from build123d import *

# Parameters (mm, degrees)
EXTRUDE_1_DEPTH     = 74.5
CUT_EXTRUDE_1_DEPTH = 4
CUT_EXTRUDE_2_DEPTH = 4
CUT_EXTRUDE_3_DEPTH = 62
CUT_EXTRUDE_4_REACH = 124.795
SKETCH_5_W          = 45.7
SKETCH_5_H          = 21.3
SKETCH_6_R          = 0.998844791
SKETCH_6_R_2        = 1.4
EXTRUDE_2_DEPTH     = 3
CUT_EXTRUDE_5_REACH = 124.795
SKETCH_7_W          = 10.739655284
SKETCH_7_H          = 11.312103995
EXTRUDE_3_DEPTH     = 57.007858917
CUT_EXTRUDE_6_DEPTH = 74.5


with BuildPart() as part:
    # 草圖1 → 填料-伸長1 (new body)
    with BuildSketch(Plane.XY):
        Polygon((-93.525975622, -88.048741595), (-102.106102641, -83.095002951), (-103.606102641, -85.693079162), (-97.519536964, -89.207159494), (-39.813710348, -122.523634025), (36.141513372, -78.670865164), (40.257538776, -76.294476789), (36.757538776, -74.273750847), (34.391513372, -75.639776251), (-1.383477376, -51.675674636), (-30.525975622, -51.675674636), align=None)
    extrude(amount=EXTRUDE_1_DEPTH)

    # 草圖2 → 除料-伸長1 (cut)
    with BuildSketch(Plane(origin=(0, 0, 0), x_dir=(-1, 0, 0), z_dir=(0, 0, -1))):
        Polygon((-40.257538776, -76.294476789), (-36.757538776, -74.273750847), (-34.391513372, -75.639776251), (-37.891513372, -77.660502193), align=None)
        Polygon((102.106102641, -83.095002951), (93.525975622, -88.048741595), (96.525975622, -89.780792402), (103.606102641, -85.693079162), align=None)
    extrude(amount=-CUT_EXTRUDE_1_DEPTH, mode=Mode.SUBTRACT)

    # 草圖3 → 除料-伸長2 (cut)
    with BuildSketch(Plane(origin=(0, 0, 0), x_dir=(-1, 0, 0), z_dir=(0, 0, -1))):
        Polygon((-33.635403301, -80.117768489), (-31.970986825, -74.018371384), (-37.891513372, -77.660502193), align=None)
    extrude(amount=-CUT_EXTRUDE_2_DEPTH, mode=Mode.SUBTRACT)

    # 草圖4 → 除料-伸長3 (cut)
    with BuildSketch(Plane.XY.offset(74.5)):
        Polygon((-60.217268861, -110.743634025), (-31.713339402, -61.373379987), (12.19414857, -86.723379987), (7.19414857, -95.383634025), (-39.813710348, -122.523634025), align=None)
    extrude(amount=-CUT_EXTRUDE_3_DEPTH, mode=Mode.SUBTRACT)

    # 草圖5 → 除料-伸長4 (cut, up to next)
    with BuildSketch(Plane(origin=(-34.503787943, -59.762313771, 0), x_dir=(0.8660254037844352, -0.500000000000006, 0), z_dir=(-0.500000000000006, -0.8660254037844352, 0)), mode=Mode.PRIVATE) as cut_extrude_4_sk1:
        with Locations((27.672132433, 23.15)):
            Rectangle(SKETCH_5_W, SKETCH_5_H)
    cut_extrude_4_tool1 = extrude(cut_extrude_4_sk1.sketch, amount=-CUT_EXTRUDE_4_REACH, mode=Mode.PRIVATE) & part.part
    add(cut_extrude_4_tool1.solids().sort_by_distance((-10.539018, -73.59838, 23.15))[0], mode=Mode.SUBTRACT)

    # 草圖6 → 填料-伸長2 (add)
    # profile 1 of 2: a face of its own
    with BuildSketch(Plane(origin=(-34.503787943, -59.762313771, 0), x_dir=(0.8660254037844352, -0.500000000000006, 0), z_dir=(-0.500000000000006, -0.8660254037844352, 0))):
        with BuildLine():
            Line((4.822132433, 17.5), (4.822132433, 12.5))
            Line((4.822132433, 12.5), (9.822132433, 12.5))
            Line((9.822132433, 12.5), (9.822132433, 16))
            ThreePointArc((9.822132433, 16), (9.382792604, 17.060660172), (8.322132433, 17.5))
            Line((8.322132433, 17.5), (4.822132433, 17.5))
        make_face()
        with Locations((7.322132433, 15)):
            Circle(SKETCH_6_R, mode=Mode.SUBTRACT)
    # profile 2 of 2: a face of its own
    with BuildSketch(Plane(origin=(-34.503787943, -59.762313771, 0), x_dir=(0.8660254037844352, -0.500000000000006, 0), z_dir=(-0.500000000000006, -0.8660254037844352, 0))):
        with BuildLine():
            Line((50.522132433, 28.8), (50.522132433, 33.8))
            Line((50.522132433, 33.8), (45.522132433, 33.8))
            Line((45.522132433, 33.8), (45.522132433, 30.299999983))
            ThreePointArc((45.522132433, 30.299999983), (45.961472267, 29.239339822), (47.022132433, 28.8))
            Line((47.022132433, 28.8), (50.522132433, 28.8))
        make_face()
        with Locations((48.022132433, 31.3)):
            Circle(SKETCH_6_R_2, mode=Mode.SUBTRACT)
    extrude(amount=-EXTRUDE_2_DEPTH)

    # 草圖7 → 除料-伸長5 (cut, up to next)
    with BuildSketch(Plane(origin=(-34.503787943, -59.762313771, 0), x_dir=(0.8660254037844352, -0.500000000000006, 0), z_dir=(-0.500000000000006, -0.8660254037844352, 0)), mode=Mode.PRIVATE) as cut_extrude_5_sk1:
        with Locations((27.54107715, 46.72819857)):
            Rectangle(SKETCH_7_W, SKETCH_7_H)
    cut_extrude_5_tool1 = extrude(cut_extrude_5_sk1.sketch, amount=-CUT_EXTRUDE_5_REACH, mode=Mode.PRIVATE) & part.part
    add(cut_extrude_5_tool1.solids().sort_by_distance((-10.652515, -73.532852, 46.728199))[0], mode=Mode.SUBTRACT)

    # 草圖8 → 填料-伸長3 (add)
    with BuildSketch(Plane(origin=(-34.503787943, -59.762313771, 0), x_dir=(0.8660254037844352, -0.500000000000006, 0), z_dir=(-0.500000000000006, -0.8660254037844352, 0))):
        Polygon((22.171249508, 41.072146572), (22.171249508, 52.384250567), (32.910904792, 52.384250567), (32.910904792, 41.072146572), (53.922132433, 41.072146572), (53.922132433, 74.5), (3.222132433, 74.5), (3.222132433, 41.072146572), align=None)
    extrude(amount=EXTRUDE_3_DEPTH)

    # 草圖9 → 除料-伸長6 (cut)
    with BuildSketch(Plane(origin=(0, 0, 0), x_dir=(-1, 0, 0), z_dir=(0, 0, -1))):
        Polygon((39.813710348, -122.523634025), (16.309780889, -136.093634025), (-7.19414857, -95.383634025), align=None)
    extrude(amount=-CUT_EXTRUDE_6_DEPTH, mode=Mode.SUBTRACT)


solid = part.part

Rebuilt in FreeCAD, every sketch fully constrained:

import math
import FreeCAD as App
import Part
import Sketcher
from FreeCAD import Vector
Q = App.Units.Quantity

doc = App.newDocument("Part")
params = doc.addObject("Spreadsheet::Sheet", "Params")
for row, (alias, value) in enumerate([
    ("sketch1_length", "3 mm"),
    ("pad1_length", "74.5 mm"),
    ("sketch2_length", "3 mm"),
    ("pocket1_length", "4 mm"),
    ("pocket2_length", "4 mm"),
    ("sketch4_length", "10 mm"),
    ("sketch4_length2", "50.7 mm"),
    ("sketch4_length3", "23.56 mm"),
    ("pocket3_length", "62 mm"),
    ("sketch5_width", "45.7 mm"),
    ("sketch5_height", "21.3 mm"),
    ("sketch6_diameter", "2.8 mm"),
    ("sketch6_radius", "1.5 mm"),
    ("sketch6_width", "5 mm"),
    ("pad2_length", "3 mm"),
    ("sketch8_width", "50.7 mm"),
    ("pad3_length", "57.007859 mm"),
    ("sketch9_length", "27.14 mm"),
    ("pocket6_length", "74.5 mm"),
], start=1):
    params.set(f"A{row}", alias)
    params.set(f"B{row}", "=" + value)
    params.setAlias(f"B{row}", alias)

body = doc.addObject("PartDesign::Body", "Body")

sketch1 = body.newObject("Sketcher::SketchObject", "Sketch")
sketch1.AttachmentSupport = (doc.getObject("XY_Plane"), [""])
sketch1.MapMode = "FlatFace"
sketch1.addGeometry([
    Part.LineSegment(Vector(-93.5, -88, 0), Vector(-102.1, -83.1, 0)),
    Part.LineSegment(Vector(-102.1, -83.1, 0), Vector(-103.6, -85.7, 0)),
    Part.LineSegment(Vector(-103.6, -85.7, 0), Vector(-97.5, -89.2, 0)),
    Part.LineSegment(Vector(-97.5, -89.2, 0), Vector(-39.8, -122.5, 0)),
    Part.LineSegment(Vector(-39.8, -122.5, 0), Vector(36.1, -78.7, 0)),
    Part.LineSegment(Vector(36.1, -78.7, 0), Vector(40.3, -76.3, 0)),
    Part.LineSegment(Vector(40.3, -76.3, 0), Vector(36.8, -74.3, 0)),
    Part.LineSegment(Vector(36.8, -74.3, 0), Vector(34.4, -75.6, 0)),
    Part.LineSegment(Vector(34.4, -75.6, 0), Vector(-1.4, -51.7, 0)),
    Part.LineSegment(Vector(-1.4, -51.7, 0), Vector(-30.5, -51.7, 0)),
    Part.LineSegment(Vector(-30.5, -51.7, 0), Vector(-93.5, -88, 0)),
], False)
sketch1.addConstraint([
    Sketcher.Constraint("Coincident", 0, 2, 1, 1),
    Sketcher.Constraint("Coincident", 1, 2, 2, 1),
    Sketcher.Constraint("Coincident", 2, 2, 3, 1),
    Sketcher.Constraint("Coincident", 3, 2, 4, 1),
    Sketcher.Constraint("Coincident", 4, 2, 5, 1),
    Sketcher.Constraint("Coincident", 5, 2, 6, 1),
    Sketcher.Constraint("Coincident", 6, 2, 7, 1),
    Sketcher.Constraint("Coincident", 7, 2, 8, 1),
    Sketcher.Constraint("Coincident", 8, 2, 9, 1),
    Sketcher.Constraint("Coincident", 9, 2, 10, 1),
    Sketcher.Constraint("Coincident", 10, 2, 0, 1),
    Sketcher.Constraint("Horizontal", 9),
    Sketcher.Constraint("Perpendicular", 0, 1),
    Sketcher.Constraint("Perpendicular", 1, 2),
    Sketcher.Constraint("Parallel", 2, 3),
    Sketcher.Constraint("Parallel", 4, 5),
    Sketcher.Constraint("Parallel", 3, 6),
    Sketcher.Constraint("Parallel", 5, 7),
    Sketcher.Constraint("Parallel", 7, 10),
    Sketcher.Constraint("Angle", 0, Q("150 deg")),
    Sketcher.Constraint("Angle", 4, Q("30 deg")),
    Sketcher.Constraint("Distance", 1, Q("3 mm")),
    Sketcher.Constraint("DistanceX", 10, 2, 9, 2, Q("63 mm")),
    Sketcher.Constraint("DistanceX", 6, 2, 5, 2, Q("3.5 mm")),
    Sketcher.Constraint("DistanceX", 7, 2, 4, 2, Q("1.75 mm")),
    Sketcher.Constraint("DistanceX", 9, 2, 9, 1, Q("29.142498 mm")),
    Sketcher.Constraint("DistanceY", 5, 2, 7, 2, Q("0.654701 mm")),
    Sketcher.Constraint("DistanceY", 7, 2, 8, 2, Q("23.964102 mm")),
    Sketcher.Constraint("Distance", 2, Q("7.028161 mm")),
    Sketcher.Constraint("Distance", 3, Q("66.632949 mm")),
    Sketcher.Constraint("Distance", 8, Q("43.059588 mm")),
    Sketcher.Constraint("DistanceY", 1, 2, -1, 1, Q("85.693079 mm")),
    Sketcher.Constraint("DistanceX", 3, 2, -1, 1, Q("39.81371 mm")),
])
sketch1.setExpression("Constraints[21]", "Params.sketch1_length")
pad1 = body.newObject("PartDesign::Pad", "Pad")
pad1.Profile = sketch1
pad1.setExpression("Length", "Params.pad1_length")

sketch2 = body.newObject("Sketcher::SketchObject", "Sketch001")
sketch2.AttachmentSupport = (doc.getObject("XY_Plane"), [""])
sketch2.MapMode = "FlatFace"
sketch2.addGeometry([
    Part.LineSegment(Vector(36.8, -74.3, 0), Vector(40.3, -76.3, 0)),
    Part.LineSegment(Vector(40.3, -76.3, 0), Vector(37.9, -77.7, 0)),
    Part.LineSegment(Vector(37.9, -77.7, 0), Vector(34.4, -75.6, 0)),
    Part.LineSegment(Vector(34.4, -75.6, 0), Vector(36.8, -74.3, 0)),
    Part.LineSegment(Vector(-102.1, -83.1, 0), Vector(-93.5, -88, 0)),
    Part.LineSegment(Vector(-93.5, -88, 0), Vector(-96.5, -89.8, 0)),
    Part.LineSegment(Vector(-96.5, -89.8, 0), Vector(-103.6, -85.7, 0)),
    Part.LineSegment(Vector(-103.6, -85.7, 0), Vector(-102.1, -83.1, 0)),
], False)
sketch2.addConstraint([
    Sketcher.Constraint("Coincident", 0, 2, 1, 1),
    Sketcher.Constraint("Coincident", 1, 2, 2, 1),
    Sketcher.Constraint("Coincident", 2, 2, 3, 1),
    Sketcher.Constraint("Coincident", 3, 2, 0, 1),
    Sketcher.Constraint("Coincident", 4, 2, 5, 1),
    Sketcher.Constraint("Coincident", 5, 2, 6, 1),
    Sketcher.Constraint("Coincident", 6, 2, 7, 1),
    Sketcher.Constraint("Coincident", 7, 2, 4, 1),
    Sketcher.Constraint("Parallel", 0, 2),
    Sketcher.Constraint("Parallel", 1, 3),
    Sketcher.Constraint("Parallel", 2, 4),
    Sketcher.Constraint("Parallel", 3, 5),
    Sketcher.Constraint("Parallel", 4, 6),
    Sketcher.Constraint("Perpendicular", 6, 7),
    Sketcher.Constraint("Angle", 0, Q("-30 deg")),
    Sketcher.Constraint("Angle", 1, Q("-150 deg")),
    Sketcher.Constraint("Distance", 7, Q("3 mm")),
    Sketcher.Constraint("DistanceX", 2, 2, 1, 2, Q("3.5 mm")),
    Sketcher.Constraint("DistanceY", 0, 2, 2, 2, Q("0.654701 mm")),
    Sketcher.Constraint("DistanceX", -1, 1, 0, 2, Q("40.257539 mm")),
    Sketcher.Constraint("DistanceY", 3, 2, -1, 1, Q("74.273751 mm")),
    Sketcher.Constraint("DistanceY", 4, 2, -1, 1, Q("88.048742 mm")),
    Sketcher.Constraint("DistanceY", 6, 2, -1, 1, Q("85.693079 mm")),
    Sketcher.Constraint("DistanceX", 4, 2, 2, 2, Q("127.917489 mm")),
])
sketch2.setExpression("Constraints[16]", "Params.sketch2_length")
pocket1 = body.newObject("PartDesign::Pocket", "Pocket")
pocket1.Profile = sketch2
pocket1.setExpression("Length", "Params.pocket1_length")
pocket1.Reversed = True

sketch3 = body.newObject("Sketcher::SketchObject", "Sketch002")
sketch3.AttachmentSupport = (doc.getObject("XY_Plane"), [""])
sketch3.MapMode = "FlatFace"
sketch3.addGeometry([
    Part.LineSegment(Vector(33.6, -80.1, 0), Vector(32, -74, 0)),
    Part.LineSegment(Vector(32, -74, 0), Vector(37.9, -77.7, 0)),
    Part.LineSegment(Vector(37.9, -77.7, 0), Vector(33.6, -80.1, 0)),
], False)
sketch3.addConstraint([
    Sketcher.Constraint("Coincident", 0, 2, 1, 1),
    Sketcher.Constraint("Coincident", 1, 2, 2, 1),
    Sketcher.Constraint("Coincident", 2, 2, 0, 1),
    Sketcher.Constraint("Angle", 2, Q("-150 deg")),
    Sketcher.Constraint("DistanceY", 0, 2, -1, 1, Q("74.018371 mm")),
    Sketcher.Constraint("DistanceY", 2, 2, -1, 1, Q("80.117768 mm")),
    Sketcher.Constraint("DistanceY", 1, 2, 0, 2, Q("3.642131 mm")),
    Sketcher.Constraint("Distance", 0, Q("6.322415 mm")),
    Sketcher.Constraint("DistanceX", -1, 1, 0, 2, Q("31.970987 mm")),
])
pocket2 = body.newObject("PartDesign::Pocket", "Pocket001")
pocket2.Profile = sketch3
pocket2.setExpression("Length", "Params.pocket2_length")
pocket2.Reversed = True

sketch4 = body.newObject("Sketcher::SketchObject", "Sketch003")
sketch4.AttachmentSupport = (doc.getObject("XY_Plane"), [""])
sketch4.MapMode = "FlatFace"
sketch4.AttachmentOffset = App.Placement(Vector(0, 0, 74.5), App.Rotation())
sketch4.addGeometry([
    Part.LineSegment(Vector(-32, -61, 0), Vector(-60, -111, 0)),
    Part.LineSegment(Vector(-60, -111, 0), Vector(-40, -123, 0)),
    Part.LineSegment(Vector(-40, -123, 0), Vector(7, -95, 0)),
    Part.LineSegment(Vector(7, -95, 0), Vector(12, -87, 0)),
    Part.LineSegment(Vector(12, -87, 0), Vector(-32, -61, 0)),
], False)
sketch4.addConstraint([
    Sketcher.Constraint("Coincident", 0, 2, 1, 1),
    Sketcher.Constraint("Coincident", 1, 2, 2, 1),
    Sketcher.Constraint("Coincident", 2, 2, 3, 1),
    Sketcher.Constraint("Coincident", 3, 2, 4, 1),
    Sketcher.Constraint("Coincident", 4, 2, 0, 1),
    Sketcher.Constraint("Perpendicular", 0, 1),
    Sketcher.Constraint("Perpendicular", 1, 3),
    Sketcher.Constraint("Perpendicular", 3, 4),
    Sketcher.Constraint("Angle", 0, Q("-120 deg")),
    Sketcher.Constraint("Angle", 2, Q("30 deg")),
    Sketcher.Constraint("Distance", 3, Q("10 mm")),
    Sketcher.Constraint("Distance", 4, Q("50.7 mm")),
    Sketcher.Constraint("Distance", 1, Q("23.56 mm")),
    Sketcher.Constraint("DistanceX", 0, 2, -1, 1, Q("60.217269 mm")),
    Sketcher.Constraint("DistanceY", 3, 2, -1, 1, Q("86.72338 mm")),
])
sketch4.setExpression("Constraints[10]", "Params.sketch4_length")
sketch4.setExpression("Constraints[11]", "Params.sketch4_length2")
sketch4.setExpression("Constraints[12]", "Params.sketch4_length3")
pocket3 = body.newObject("PartDesign::Pocket", "Pocket002")
pocket3.Profile = sketch4
pocket3.setExpression("Length", "Params.pocket3_length")

sketch5 = body.newObject("Sketcher::SketchObject", "Sketch004")
sketch5.Placement = App.Placement(Vector(-34.503788, -59.762314, 0), App.Rotation(Vector(0.866025404, -0.5, 0), Vector(0, 0, 1), Vector(-0.5, -0.866025404, 0), "ZXY"))
sketch5.addGeometry([
    Part.LineSegment(Vector(5, 34, 0), Vector(5, 13, 0)),
    Part.LineSegment(Vector(5, 13, 0), Vector(51, 13, 0)),
    Part.LineSegment(Vector(51, 13, 0), Vector(51, 34, 0)),
    Part.LineSegment(Vector(51, 34, 0), Vector(5, 34, 0)),
], False)
sketch5.addConstraint([
    Sketcher.Constraint("Coincident", 0, 2, 1, 1),
    Sketcher.Constraint("Coincident", 1, 2, 2, 1),
    Sketcher.Constraint("Coincident", 2, 2, 3, 1),
    Sketcher.Constraint("Coincident", 3, 2, 0, 1),
    Sketcher.Constraint("Vertical", 0),
    Sketcher.Constraint("Horizontal", 1),
    Sketcher.Constraint("Vertical", 2),
    Sketcher.Constraint("Horizontal", 3),
    Sketcher.Constraint("DistanceX", 1, 1, 1, 2, Q("45.7 mm")),
    Sketcher.Constraint("DistanceY", 0, 2, 0, 1, Q("21.3 mm")),
    Sketcher.Constraint("DistanceY", -1, 1, 0, 2, Q("12.5 mm")),
    Sketcher.Constraint("DistanceX", -1, 1, 0, 2, Q("4.822132 mm")),
])
sketch5.setExpression("Constraints[8]", "Params.sketch5_width")
sketch5.setExpression("Constraints[9]", "Params.sketch5_height")
pocket4 = body.newObject("PartDesign::Pocket", "Pocket003")
pocket4.Profile = sketch5
pocket4.Type = "UpToFirst"

sketch6 = body.newObject("Sketcher::SketchObject", "Sketch005")
sketch6.Placement = App.Placement(Vector(-34.503788, -59.762314, 0), App.Rotation(Vector(0.866025404, -0.5, 0), Vector(0, 0, 1), Vector(-0.5, -0.866025404, 0), "ZXY"))
sketch6.addGeometry([
    Part.LineSegment(Vector(4.8, 17.5, 0), Vector(4.8, 12.5, 0)),
    Part.LineSegment(Vector(4.8, 12.5, 0), Vector(9.8, 12.5, 0)),
    Part.LineSegment(Vector(9.8, 12.5, 0), Vector(9.8, 16, 0)),
    Part.ArcOfCircle(Part.Circle(Vector(8.3, 16, 0), Vector(0, 0, 1), 1.5), math.radians(0), math.radians(90)),
    Part.LineSegment(Vector(8.3, 17.5, 0), Vector(4.8, 17.5, 0)),
    Part.Circle(Vector(7.3, 15, 0), Vector(0, 0, 1), 1),
    Part.LineSegment(Vector(50.5, 28.8, 0), Vector(50.5, 33.8, 0)),
    Part.LineSegment(Vector(50.5, 33.8, 0), Vector(45.5, 33.8, 0)),
    Part.LineSegment(Vector(45.5, 33.8, 0), Vector(45.5, 30.3, 0)),
    Part.ArcOfCircle(Part.Circle(Vector(47, 30.3, 0), Vector(0, 0, 1), 1.5), math.radians(-180), math.radians(-90)),
    Part.LineSegment(Vector(47, 28.8, 0), Vector(50.5, 28.8, 0)),
    Part.Circle(Vector(48, 31.3, 0), Vector(0, 0, 1), 1.4),
], False)
sketch6.addConstraint([
    Sketcher.Constraint("Coincident", 0, 2, 1, 1),
    Sketcher.Constraint("Coincident", 1, 2, 2, 1),
    Sketcher.Constraint("Tangent", 2, 2, 3, 1),
    Sketcher.Constraint("Tangent", 3, 2, 4, 1),
    Sketcher.Constraint("Coincident", 4, 2, 0, 1),
    Sketcher.Constraint("Coincident", 6, 2, 7, 1),
    Sketcher.Constraint("Coincident", 7, 2, 8, 1),
    Sketcher.Constraint("Tangent", 8, 2, 9, 1),
    Sketcher.Constraint("Tangent", 9, 2, 10, 1),
    Sketcher.Constraint("Coincident", 10, 2, 6, 1),
    Sketcher.Constraint("Vertical", 0),
    Sketcher.Constraint("Horizontal", 1),
    Sketcher.Constraint("Vertical", 2),
    Sketcher.Constraint("Horizontal", 4),
    Sketcher.Constraint("Vertical", 6),
    Sketcher.Constraint("Horizontal", 7),
    Sketcher.Constraint("Vertical", 8),
    Sketcher.Constraint("Horizontal", 10),
    Sketcher.Constraint("Equal", 3, 9),
    Sketcher.Constraint("Equal", 1, 7),
    Sketcher.Constraint("Equal", 7, 0),
    Sketcher.Constraint("Equal", 0, 6),
    Sketcher.Constraint("Diameter", 11, Q("2.8 mm")),
    Sketcher.Constraint("Radius", 3, Q("1.5 mm")),
    Sketcher.Constraint("DistanceX", 1, 1, 1, 2, Q("5 mm")),
    Sketcher.Constraint("DistanceY", -1, 1, 3, 3, Q("16 mm")),
    Sketcher.Constraint("DistanceY", -1, 1, 5, 3, Q("15 mm")),
    Sketcher.Constraint("DistanceX", 5, 3, 3, 3, Q("1 mm")),
    Sketcher.Constraint("DistanceX", 9, 3, 11, 3, Q("1 mm")),
    Sketcher.Constraint("DistanceY", 9, 3, 11, 3, Q("1 mm")),
    Sketcher.Constraint("DistanceY", -1, 1, 9, 3, Q("30.3 mm")),
    Sketcher.Constraint("DistanceX", 3, 3, 9, 3, Q("38.7 mm")),
    Sketcher.Constraint("Diameter", 5, Q("1.99769 mm")),
    Sketcher.Constraint("DistanceX", -1, 1, 3, 3, Q("8.322132 mm")),
])
sketch6.setExpression("Constraints[22]", "Params.sketch6_diameter")
sketch6.setExpression("Constraints[23]", "Params.sketch6_radius")
sketch6.setExpression("Constraints[24]", "Params.sketch6_width")
pad2 = body.newObject("PartDesign::Pad", "Pad001")
pad2.Profile = sketch6
pad2.setExpression("Length", "Params.pad2_length")
pad2.Reversed = True

sketch7 = body.newObject("Sketcher::SketchObject", "Sketch006")
sketch7.Placement = App.Placement(Vector(-34.503788, -59.762314, 0), App.Rotation(Vector(0.866025404, -0.5, 0), Vector(0, 0, 1), Vector(-0.5, -0.866025404, 0), "ZXY"))
sketch7.addGeometry([
    Part.LineSegment(Vector(22, 52, 0), Vector(22, 41, 0)),
    Part.LineSegment(Vector(22, 41, 0), Vector(33, 41, 0)),
    Part.LineSegment(Vector(33, 41, 0), Vector(33, 52, 0)),
    Part.LineSegment(Vector(33, 52, 0), Vector(22, 52, 0)),
], False)
sketch7.addConstraint([
    Sketcher.Constraint("Coincident", 0, 2, 1, 1),
    Sketcher.Constraint("Coincident", 1, 2, 2, 1),
    Sketcher.Constraint("Coincident", 2, 2, 3, 1),
    Sketcher.Constraint("Coincident", 3, 2, 0, 1),
    Sketcher.Constraint("Vertical", 0),
    Sketcher.Constraint("Horizontal", 1),
    Sketcher.Constraint("Vertical", 2),
    Sketcher.Constraint("Horizontal", 3),
    Sketcher.Constraint("DistanceX", 1, 1, 1, 2, Q("10.739655 mm")),
    Sketcher.Constraint("DistanceY", 0, 2, 0, 1, Q("11.312104 mm")),
    Sketcher.Constraint("DistanceX", -1, 1, 0, 2, Q("22.17125 mm")),
    Sketcher.Constraint("DistanceY", -1, 1, 2, 2, Q("52.384251 mm")),
])
pocket5 = body.newObject("PartDesign::Pocket", "Pocket004")
pocket5.Profile = sketch7
pocket5.Type = "UpToFirst"

sketch8 = body.newObject("Sketcher::SketchObject", "Sketch007")
sketch8.Placement = App.Placement(Vector(-34.503788, -59.762314, 0), App.Rotation(Vector(0.866025404, -0.5, 0), Vector(0, 0, 1), Vector(-0.5, -0.866025404, 0), "ZXY"))
sketch8.addGeometry([
    Part.LineSegment(Vector(22, 41, 0), Vector(22, 52, 0)),
    Part.LineSegment(Vector(22, 52, 0), Vector(33, 52, 0)),
    Part.LineSegment(Vector(33, 52, 0), Vector(33, 41, 0)),
    Part.LineSegment(Vector(33, 41, 0), Vector(54, 41, 0)),
    Part.LineSegment(Vector(54, 41, 0), Vector(54, 75, 0)),
    Part.LineSegment(Vector(54, 75, 0), Vector(3, 75, 0)),
    Part.LineSegment(Vector(3, 75, 0), Vector(3, 41, 0)),
    Part.LineSegment(Vector(3, 41, 0), Vector(22, 41, 0)),
], False)
sketch8.addConstraint([
    Sketcher.Constraint("Coincident", 0, 2, 1, 1),
    Sketcher.Constraint("Coincident", 1, 2, 2, 1),
    Sketcher.Constraint("Coincident", 2, 2, 3, 1),
    Sketcher.Constraint("Coincident", 3, 2, 4, 1),
    Sketcher.Constraint("Coincident", 4, 2, 5, 1),
    Sketcher.Constraint("Coincident", 5, 2, 6, 1),
    Sketcher.Constraint("Coincident", 6, 2, 7, 1),
    Sketcher.Constraint("Coincident", 7, 2, 0, 1),
    Sketcher.Constraint("Vertical", 0),
    Sketcher.Constraint("Horizontal", 1),
    Sketcher.Constraint("Vertical", 2),
    Sketcher.Constraint("Horizontal", 3),
    Sketcher.Constraint("Vertical", 4),
    Sketcher.Constraint("Horizontal", 5),
    Sketcher.Constraint("Vertical", 6),
    Sketcher.Constraint("Horizontal", 7),
    Sketcher.Constraint("Horizontal", 3, 2, 6, 2),
    Sketcher.Constraint("DistanceX", 5, 2, 5, 1, Q("50.7 mm")),
    Sketcher.Constraint("DistanceY", -1, 1, 4, 2, Q("74.5 mm")),
    Sketcher.Constraint("DistanceX", 1, 1, 1, 2, Q("10.739655 mm")),
    Sketcher.Constraint("DistanceX", 3, 1, 3, 2, Q("21.011228 mm")),
    Sketcher.Constraint("DistanceY", 0, 1, 0, 2, Q("11.312104 mm")),
    Sketcher.Constraint("DistanceY", 4, 1, 4, 2, Q("33.427853 mm")),
    Sketcher.Constraint("DistanceX", -1, 1, 0, 2, Q("22.17125 mm")),
])
sketch8.setExpression("Constraints[17]", "Params.sketch8_width")
pad3 = body.newObject("PartDesign::Pad", "Pad002")
pad3.Profile = sketch8
pad3.setExpression("Length", "Params.pad3_length")

sketch9 = body.newObject("Sketcher::SketchObject", "Sketch008")
sketch9.AttachmentSupport = (doc.getObject("XY_Plane"), [""])
sketch9.MapMode = "FlatFace"
sketch9.addGeometry([
    Part.LineSegment(Vector(-16, -136, 0), Vector(-40, -123, 0)),
    Part.LineSegment(Vector(-40, -123, 0), Vector(7, -95, 0)),
    Part.LineSegment(Vector(7, -95, 0), Vector(-16, -136, 0)),
], False)
sketch9.addConstraint([
    Sketcher.Constraint("Coincident", 0, 2, 1, 1),
    Sketcher.Constraint("Coincident", 1, 2, 2, 1),
    Sketcher.Constraint("Coincident", 2, 2, 0, 1),
    Sketcher.Constraint("Perpendicular", 0, 2),
    Sketcher.Constraint("Angle", 0, Q("150 deg")),
    Sketcher.Constraint("Angle", 1, Q("30 deg")),
    Sketcher.Constraint("Distance", 0, Q("27.14 mm")),
    Sketcher.Constraint("DistanceX", 0, 2, -1, 1, Q("39.81371 mm")),
    Sketcher.Constraint("DistanceY", 0, 2, -1, 1, Q("122.523634 mm")),
])
sketch9.setExpression("Constraints[6]", "Params.sketch9_length")
pocket6 = body.newObject("PartDesign::Pocket", "Pocket005")
pocket6.Profile = sketch9
pocket6.setExpression("Length", "Params.pocket6_length")
pocket6.Reversed = True

doc.recompute()
